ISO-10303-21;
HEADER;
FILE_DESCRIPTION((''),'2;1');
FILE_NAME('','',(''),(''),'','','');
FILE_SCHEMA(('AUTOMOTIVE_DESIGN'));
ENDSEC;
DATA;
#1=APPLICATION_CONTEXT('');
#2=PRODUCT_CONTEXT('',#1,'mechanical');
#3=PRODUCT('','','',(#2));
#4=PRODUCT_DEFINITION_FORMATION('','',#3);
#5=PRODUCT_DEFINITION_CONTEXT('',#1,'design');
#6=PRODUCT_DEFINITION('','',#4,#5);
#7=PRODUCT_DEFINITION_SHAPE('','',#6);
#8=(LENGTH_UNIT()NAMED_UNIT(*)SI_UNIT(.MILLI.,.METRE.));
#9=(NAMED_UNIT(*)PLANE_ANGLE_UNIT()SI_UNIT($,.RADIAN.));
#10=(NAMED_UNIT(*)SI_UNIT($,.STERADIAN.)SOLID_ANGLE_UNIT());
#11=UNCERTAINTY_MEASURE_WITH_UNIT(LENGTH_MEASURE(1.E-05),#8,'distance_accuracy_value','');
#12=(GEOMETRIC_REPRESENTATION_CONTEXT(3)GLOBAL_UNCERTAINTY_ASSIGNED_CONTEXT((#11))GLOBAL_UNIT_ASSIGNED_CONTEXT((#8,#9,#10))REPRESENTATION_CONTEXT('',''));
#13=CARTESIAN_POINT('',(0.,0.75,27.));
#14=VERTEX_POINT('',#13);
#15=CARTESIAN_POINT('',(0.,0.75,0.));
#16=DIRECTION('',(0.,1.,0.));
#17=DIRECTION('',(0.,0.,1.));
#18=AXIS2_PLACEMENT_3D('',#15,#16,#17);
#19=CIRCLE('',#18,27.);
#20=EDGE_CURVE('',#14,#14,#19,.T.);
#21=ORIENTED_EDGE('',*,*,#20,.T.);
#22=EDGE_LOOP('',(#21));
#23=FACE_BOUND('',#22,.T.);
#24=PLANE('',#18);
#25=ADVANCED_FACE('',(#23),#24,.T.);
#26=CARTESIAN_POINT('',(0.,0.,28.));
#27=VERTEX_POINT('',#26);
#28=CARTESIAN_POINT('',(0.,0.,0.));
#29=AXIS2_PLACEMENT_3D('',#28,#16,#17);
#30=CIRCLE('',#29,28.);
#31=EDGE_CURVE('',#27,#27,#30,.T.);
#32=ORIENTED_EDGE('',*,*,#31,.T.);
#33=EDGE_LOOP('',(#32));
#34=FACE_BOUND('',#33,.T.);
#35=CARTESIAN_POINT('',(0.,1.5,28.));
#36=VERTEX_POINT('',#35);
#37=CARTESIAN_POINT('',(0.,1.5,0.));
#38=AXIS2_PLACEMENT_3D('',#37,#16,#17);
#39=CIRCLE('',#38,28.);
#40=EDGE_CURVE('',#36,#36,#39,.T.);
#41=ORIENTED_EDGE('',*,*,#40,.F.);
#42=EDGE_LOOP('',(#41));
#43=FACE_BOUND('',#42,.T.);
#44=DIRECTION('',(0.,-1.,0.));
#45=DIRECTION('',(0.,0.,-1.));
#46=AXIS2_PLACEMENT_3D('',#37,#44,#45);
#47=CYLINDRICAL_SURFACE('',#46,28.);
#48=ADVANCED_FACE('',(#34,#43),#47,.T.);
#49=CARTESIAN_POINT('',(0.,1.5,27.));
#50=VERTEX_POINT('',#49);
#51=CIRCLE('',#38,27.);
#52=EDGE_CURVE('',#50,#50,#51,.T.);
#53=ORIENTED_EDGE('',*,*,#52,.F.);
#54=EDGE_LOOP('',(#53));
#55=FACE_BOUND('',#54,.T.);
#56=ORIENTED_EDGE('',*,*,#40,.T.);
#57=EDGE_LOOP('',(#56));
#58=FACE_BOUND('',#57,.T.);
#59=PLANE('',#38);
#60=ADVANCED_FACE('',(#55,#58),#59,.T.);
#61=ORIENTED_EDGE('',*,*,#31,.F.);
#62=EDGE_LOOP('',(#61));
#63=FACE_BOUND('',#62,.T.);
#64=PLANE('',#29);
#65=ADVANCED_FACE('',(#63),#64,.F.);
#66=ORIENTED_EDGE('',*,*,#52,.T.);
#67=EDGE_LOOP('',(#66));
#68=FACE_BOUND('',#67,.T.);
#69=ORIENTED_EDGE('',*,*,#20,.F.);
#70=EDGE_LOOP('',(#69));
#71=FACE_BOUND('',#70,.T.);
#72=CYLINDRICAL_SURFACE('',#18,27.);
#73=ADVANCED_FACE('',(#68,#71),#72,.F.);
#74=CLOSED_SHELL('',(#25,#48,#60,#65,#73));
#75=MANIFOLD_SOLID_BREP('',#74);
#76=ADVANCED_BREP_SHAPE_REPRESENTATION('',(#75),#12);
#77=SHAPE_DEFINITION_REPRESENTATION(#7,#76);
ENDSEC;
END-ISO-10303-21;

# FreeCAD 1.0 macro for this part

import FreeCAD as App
import Part
import Sketcher
from FreeCAD import Vector
Q = App.Units.Quantity

doc = App.newDocument("Part")
body = doc.addObject("PartDesign::Body", "Body")

sketch1 = body.newObject("Sketcher::SketchObject", "Sketch")
sketch1.AttachmentSupport = (doc.getObject("XZ_Plane"), [""])
sketch1.MapMode = "FlatFace"
sketch1.addGeometry(Part.Circle(Vector(0, 0, 0), Vector(0, 0, 1), 28), False)
sketch1.addConstraint([
    Sketcher.Constraint("Coincident", 0, 3, -1, 1),
    Sketcher.Constraint("Diameter", 0, Q("56 mm")),
])
pad1 = body.newObject("PartDesign::Pad", "Pad")
pad1.Profile = sketch1
pad1.Length = 1.5
pad1.Reversed = True

sketch2 = body.newObject("Sketcher::SketchObject", "Sketch001")
sketch2.AttachmentSupport = (doc.getObject("XZ_Plane"), [""])
sketch2.MapMode = "FlatFace"
sketch2.AttachmentOffset = App.Placement(Vector(0, 0, -1.5), App.Rotation())
sketch2.addGeometry(Part.Circle(Vector(0, 0, 0), Vector(0, 0, 1), 27), False)
sketch2.addConstraint([
    Sketcher.Constraint("Coincident", 0, 3, -1, 1),
    Sketcher.Constraint("Diameter", 0, Q("54 mm")),
])
pocket1 = body.newObject("PartDesign::Pocket", "Pocket")
pocket1.Profile = sketch2
pocket1.Length = 0.75
pocket1.Reversed = True

doc.recompute()
